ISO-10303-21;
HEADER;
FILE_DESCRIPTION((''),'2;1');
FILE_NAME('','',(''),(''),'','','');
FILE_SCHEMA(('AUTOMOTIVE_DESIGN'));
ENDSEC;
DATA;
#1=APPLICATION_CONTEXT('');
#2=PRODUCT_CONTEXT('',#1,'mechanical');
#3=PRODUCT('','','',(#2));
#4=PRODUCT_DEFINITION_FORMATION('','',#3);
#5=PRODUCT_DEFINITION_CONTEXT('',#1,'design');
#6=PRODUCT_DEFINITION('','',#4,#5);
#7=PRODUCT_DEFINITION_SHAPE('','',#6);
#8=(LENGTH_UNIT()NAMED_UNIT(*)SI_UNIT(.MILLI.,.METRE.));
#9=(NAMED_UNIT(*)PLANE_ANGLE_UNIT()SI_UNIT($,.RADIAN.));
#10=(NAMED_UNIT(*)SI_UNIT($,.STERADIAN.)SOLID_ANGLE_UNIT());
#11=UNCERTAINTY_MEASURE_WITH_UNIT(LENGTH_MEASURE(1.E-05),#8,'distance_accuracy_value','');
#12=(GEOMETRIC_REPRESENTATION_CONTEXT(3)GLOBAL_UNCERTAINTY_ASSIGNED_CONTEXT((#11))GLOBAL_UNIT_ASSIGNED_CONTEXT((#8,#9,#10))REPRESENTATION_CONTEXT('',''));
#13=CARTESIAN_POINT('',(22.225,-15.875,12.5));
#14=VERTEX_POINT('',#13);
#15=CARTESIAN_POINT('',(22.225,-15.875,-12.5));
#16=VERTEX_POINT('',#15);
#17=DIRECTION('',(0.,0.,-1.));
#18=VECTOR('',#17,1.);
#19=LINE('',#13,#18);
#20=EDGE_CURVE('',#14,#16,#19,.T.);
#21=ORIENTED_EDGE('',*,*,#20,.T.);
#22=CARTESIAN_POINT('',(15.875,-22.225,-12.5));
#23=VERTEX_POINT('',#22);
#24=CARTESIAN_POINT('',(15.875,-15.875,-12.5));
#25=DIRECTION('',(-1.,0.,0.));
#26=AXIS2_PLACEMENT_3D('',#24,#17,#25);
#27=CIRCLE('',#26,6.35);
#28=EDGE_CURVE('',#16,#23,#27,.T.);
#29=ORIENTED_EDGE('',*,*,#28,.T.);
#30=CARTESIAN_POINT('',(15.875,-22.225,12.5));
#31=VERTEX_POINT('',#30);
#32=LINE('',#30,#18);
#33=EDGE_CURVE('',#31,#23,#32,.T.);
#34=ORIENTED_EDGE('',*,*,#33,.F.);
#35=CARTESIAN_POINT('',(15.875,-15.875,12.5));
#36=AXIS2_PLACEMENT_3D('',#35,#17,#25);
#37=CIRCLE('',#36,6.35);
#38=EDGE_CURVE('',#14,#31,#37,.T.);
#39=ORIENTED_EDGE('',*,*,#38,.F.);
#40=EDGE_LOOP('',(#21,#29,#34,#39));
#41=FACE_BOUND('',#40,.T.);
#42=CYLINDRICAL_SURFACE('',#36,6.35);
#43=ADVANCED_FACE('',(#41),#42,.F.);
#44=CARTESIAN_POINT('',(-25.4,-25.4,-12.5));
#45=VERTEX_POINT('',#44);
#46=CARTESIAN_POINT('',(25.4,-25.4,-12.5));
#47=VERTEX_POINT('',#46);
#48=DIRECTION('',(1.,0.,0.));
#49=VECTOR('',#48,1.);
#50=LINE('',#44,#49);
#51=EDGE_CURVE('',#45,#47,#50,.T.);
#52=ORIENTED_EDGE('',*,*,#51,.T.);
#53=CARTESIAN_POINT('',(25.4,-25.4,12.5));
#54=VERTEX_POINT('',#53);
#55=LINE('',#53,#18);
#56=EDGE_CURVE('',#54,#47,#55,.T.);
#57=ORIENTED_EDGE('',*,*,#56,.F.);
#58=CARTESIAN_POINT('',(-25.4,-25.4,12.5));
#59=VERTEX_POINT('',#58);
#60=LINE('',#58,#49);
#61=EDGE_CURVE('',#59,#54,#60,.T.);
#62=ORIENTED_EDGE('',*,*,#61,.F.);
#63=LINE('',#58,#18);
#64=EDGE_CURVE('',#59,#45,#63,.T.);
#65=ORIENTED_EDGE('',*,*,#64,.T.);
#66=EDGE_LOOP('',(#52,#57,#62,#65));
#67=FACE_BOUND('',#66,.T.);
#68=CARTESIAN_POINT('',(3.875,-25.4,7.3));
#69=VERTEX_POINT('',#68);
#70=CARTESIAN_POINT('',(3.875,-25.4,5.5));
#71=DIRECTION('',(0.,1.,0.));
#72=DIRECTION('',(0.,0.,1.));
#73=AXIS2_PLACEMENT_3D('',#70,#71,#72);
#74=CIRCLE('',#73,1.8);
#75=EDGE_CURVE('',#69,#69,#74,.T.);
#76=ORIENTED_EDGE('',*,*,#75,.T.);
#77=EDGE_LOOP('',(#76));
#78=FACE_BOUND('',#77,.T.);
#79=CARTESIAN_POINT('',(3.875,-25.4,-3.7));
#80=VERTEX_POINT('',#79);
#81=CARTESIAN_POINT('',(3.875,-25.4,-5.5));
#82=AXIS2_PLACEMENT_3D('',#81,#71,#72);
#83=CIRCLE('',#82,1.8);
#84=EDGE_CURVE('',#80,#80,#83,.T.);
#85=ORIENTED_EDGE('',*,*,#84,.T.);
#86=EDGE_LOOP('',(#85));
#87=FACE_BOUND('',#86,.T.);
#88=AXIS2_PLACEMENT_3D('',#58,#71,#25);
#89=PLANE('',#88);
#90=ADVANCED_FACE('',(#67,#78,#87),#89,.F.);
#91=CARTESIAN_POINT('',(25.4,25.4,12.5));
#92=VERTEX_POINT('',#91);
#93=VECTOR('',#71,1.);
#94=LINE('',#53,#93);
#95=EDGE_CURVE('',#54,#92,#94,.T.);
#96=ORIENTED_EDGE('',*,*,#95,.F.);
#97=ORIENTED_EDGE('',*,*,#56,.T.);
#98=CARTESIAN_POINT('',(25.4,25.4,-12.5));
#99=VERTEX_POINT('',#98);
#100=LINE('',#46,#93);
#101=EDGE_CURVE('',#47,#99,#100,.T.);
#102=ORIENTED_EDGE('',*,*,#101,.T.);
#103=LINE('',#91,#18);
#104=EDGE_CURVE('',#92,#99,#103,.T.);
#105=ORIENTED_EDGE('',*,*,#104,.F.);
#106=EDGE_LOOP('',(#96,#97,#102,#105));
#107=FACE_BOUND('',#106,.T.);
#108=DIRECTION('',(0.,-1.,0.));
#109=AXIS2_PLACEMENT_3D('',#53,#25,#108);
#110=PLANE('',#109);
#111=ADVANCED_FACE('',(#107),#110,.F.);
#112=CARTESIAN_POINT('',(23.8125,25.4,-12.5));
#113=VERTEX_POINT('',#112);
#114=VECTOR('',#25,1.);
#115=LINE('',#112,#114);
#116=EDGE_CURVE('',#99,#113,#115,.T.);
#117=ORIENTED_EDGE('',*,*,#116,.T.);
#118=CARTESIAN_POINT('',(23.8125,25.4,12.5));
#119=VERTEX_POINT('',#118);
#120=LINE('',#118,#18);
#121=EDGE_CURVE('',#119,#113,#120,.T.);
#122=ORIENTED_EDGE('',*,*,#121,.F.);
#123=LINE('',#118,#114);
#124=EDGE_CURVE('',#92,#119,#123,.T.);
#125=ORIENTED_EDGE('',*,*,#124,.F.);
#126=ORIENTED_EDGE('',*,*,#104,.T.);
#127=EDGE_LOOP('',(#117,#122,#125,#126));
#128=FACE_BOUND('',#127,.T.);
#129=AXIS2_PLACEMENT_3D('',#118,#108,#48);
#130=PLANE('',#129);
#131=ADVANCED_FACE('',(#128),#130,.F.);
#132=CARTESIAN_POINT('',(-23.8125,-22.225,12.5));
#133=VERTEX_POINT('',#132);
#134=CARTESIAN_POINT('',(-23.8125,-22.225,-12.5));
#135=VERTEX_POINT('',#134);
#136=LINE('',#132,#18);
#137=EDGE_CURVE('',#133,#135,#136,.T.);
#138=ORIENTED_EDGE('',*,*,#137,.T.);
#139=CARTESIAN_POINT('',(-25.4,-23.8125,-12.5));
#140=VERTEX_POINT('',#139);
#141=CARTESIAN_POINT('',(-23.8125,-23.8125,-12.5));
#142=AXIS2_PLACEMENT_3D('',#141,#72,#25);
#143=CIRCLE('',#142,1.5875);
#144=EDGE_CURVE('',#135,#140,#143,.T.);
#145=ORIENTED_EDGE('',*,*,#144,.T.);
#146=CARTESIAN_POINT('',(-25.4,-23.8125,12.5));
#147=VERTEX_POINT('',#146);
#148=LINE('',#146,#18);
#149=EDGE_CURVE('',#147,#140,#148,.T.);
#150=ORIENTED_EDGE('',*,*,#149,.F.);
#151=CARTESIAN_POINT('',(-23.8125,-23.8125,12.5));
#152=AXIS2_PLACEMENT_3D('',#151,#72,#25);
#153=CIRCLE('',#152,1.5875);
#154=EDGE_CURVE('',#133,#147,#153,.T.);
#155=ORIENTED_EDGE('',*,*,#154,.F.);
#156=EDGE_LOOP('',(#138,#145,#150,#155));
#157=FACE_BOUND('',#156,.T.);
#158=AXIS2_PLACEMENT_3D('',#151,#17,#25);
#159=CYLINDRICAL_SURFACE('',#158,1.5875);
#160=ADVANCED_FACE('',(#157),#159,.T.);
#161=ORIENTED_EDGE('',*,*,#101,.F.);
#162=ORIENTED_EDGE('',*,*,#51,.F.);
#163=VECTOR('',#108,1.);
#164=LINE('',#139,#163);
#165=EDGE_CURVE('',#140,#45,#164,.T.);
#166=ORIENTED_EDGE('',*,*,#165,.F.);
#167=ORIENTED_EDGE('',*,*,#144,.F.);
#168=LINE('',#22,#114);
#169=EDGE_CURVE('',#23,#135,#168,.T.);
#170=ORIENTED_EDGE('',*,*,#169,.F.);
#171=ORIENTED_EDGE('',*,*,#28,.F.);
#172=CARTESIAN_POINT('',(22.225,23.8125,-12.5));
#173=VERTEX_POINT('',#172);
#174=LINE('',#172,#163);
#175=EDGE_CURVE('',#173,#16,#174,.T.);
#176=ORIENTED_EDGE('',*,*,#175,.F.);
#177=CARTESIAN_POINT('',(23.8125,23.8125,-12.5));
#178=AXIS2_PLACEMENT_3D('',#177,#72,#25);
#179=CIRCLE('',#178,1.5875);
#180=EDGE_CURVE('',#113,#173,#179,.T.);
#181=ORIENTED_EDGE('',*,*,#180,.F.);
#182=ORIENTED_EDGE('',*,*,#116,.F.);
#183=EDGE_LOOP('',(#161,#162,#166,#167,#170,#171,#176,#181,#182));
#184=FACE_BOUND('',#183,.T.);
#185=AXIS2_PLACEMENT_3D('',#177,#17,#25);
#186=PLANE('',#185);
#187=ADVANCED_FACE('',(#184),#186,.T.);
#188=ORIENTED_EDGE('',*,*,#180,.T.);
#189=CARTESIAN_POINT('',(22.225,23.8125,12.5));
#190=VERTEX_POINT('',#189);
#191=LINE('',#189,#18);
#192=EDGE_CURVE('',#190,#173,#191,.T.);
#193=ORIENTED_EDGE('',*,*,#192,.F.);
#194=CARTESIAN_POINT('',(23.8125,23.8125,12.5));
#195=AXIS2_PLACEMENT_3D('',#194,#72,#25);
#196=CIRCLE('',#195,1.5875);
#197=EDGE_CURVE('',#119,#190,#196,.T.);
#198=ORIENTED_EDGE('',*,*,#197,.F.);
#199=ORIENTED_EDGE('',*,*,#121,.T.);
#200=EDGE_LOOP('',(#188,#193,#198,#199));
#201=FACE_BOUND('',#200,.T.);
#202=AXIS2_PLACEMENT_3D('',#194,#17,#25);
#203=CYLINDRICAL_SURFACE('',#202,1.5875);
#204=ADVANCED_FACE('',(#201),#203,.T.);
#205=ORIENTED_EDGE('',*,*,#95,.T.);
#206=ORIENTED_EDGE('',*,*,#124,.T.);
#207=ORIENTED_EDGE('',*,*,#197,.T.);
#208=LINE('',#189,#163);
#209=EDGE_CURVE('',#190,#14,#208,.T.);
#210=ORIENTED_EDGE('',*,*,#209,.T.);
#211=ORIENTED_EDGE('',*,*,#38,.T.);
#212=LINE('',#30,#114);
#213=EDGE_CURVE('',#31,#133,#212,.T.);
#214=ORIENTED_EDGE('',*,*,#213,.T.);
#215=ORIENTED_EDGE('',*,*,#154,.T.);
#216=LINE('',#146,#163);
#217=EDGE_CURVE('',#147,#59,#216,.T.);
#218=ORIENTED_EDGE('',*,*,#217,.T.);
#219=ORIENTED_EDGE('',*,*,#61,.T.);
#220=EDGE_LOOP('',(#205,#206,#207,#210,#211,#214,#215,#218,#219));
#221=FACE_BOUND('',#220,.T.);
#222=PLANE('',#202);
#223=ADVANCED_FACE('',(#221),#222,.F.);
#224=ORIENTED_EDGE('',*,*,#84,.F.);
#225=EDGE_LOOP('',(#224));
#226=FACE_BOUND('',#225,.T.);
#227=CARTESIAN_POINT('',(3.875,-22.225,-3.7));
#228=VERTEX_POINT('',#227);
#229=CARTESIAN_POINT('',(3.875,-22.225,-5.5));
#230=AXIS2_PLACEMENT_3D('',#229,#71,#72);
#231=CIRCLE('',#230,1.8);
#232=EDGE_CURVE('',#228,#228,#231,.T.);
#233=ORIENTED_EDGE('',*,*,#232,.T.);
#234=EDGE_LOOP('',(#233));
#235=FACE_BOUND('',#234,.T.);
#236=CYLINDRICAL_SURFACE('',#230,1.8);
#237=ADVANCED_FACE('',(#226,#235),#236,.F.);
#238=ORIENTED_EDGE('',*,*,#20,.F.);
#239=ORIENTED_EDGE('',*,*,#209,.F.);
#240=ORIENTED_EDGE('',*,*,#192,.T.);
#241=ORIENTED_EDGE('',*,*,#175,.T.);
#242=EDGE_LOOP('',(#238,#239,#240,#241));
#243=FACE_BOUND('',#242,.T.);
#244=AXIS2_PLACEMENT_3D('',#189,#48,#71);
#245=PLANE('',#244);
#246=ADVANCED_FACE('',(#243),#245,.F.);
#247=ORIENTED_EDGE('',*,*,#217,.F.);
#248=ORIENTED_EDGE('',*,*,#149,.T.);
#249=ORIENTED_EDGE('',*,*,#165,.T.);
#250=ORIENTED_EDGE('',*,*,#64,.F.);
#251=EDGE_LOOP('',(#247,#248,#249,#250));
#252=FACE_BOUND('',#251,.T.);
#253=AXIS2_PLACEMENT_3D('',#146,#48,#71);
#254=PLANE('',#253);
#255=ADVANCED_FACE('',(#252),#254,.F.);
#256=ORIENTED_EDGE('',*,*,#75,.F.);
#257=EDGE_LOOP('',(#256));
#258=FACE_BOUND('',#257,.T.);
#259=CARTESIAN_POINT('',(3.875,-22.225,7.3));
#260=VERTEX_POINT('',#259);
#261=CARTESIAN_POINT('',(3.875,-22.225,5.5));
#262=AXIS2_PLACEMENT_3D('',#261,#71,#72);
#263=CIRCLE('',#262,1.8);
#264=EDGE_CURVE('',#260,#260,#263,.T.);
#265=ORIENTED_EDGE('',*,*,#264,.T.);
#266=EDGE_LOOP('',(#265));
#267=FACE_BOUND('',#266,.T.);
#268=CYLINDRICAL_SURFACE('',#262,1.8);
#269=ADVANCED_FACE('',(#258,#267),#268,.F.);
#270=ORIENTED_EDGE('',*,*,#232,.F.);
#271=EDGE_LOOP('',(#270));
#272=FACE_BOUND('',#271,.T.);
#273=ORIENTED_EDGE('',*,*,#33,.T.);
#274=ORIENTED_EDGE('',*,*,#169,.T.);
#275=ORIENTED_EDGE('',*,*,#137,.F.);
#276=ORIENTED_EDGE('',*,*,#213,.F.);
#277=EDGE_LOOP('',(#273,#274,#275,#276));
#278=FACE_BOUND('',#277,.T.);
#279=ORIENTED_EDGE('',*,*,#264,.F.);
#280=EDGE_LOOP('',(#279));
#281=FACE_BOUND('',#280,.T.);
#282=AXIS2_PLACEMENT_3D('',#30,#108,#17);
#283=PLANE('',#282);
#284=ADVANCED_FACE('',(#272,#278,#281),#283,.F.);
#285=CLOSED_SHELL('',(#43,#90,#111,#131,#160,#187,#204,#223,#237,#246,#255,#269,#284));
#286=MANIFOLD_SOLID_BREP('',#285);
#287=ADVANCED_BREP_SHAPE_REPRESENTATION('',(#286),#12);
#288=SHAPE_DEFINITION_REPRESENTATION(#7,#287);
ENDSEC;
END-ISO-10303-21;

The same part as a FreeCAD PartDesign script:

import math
import FreeCAD as App
import Part
import Sketcher

V = App.Vector
Q = App.Units.Quantity

doc = App.newDocument("Part")
body = doc.addObject("PartDesign::Body", "Body")

# Sketch on XY plane
sketch1 = body.newObject("Sketcher::SketchObject", "Sketch")
sketch1.AttachmentSupport = (doc.getObject("XY_Plane"), [""])
sketch1.MapMode = "FlatFace"
sketch1.addGeometry(Part.LineSegment(V(-25.4, -25.4, 0), V(25.4, -25.4, 0)), False)
sketch1.addGeometry(Part.LineSegment(V(25.4, -25.4, 0), V(25.4, 25.4, 0)), False)
sketch1.addGeometry(Part.LineSegment(V(25.4, 25.4, 0), V(23.8125, 25.4, 0)), False)
sketch1.addGeometry(Part.ArcOfCircle(Part.Circle(V(23.8125, 23.8125, 0), V(0, 0, 1), 1.5875), math.radians(90), math.radians(180)), False)
sketch1.addGeometry(Part.LineSegment(V(22.225, 23.8125, 0), V(22.225, -15.875, 0)), False)
sketch1.addGeometry(Part.ArcOfCircle(Part.Circle(V(15.875, -15.875, 0), V(0, 0, 1), 6.35), math.radians(-90), math.radians(0)), False)
sketch1.addGeometry(Part.LineSegment(V(15.875, -22.225, 0), V(-23.8125, -22.225, 0)), False)
sketch1.addGeometry(Part.ArcOfCircle(Part.Circle(V(-23.8125, -23.8125, 0), V(0, 0, 1), 1.5875), math.radians(90), math.radians(180)), False)
sketch1.addGeometry(Part.LineSegment(V(-25.4, -23.8125, 0), V(-25.4, -25.4, 0)), False)
sketch1.addConstraint(Sketcher.Constraint("Coincident", 0, 2, 1, 1))
sketch1.addConstraint(Sketcher.Constraint("Coincident", 1, 2, 2, 1))
sketch1.addConstraint(Sketcher.Constraint("Tangent", 2, 2, 3, 1))
sketch1.addConstraint(Sketcher.Constraint("Tangent", 3, 2, 4, 1))
sketch1.addConstraint(Sketcher.Constraint("Tangent", 4, 2, 5, 2))
sketch1.addConstraint(Sketcher.Constraint("Tangent", 5, 1, 6, 1))
sketch1.addConstraint(Sketcher.Constraint("Tangent", 6, 2, 7, 1))
sketch1.addConstraint(Sketcher.Constraint("Tangent", 7, 2, 8, 1))
sketch1.addConstraint(Sketcher.Constraint("Coincident", 8, 2, 0, 1))
sketch1.addConstraint(Sketcher.Constraint("Horizontal", 0))
sketch1.addConstraint(Sketcher.Constraint("Vertical", 1))
sketch1.addConstraint(Sketcher.Constraint("Horizontal", 2))
sketch1.addConstraint(Sketcher.Constraint("Vertical", 4))
sketch1.addConstraint(Sketcher.Constraint("Horizontal", 6))
sketch1.addConstraint(Sketcher.Constraint("Vertical", 8))
sketch1.addConstraint(Sketcher.Constraint("Equal", 3, 7))
sketch1.addConstraint(Sketcher.Constraint("Symmetric", 3, 3, 7, 3, -1, 1))
sketch1.addConstraint(Sketcher.Constraint("Symmetric", 1, 2, 8, 2, -1, 1))
sketch1.addConstraint(Sketcher.Constraint("Equal", 0, 1))
sketch1.addConstraint(Sketcher.Constraint("DistanceX", 0, 1, 0, 2, Q("2 in")))
sketch1.addConstraint(Sketcher.Constraint("Radius", 5, Q("0.25 in")))
sketch1.addConstraint(Sketcher.Constraint("Radius", 3, Q("0.0625 in")))
pad1 = body.newObject("PartDesign::Pad", "Pad")
pad1.Profile = sketch1
pad1.Length = 25
pad1.Midplane = True

# Sketch on XZ plane
sketch2 = body.newObject("Sketcher::SketchObject", "Sketch001")
sketch2.AttachmentSupport = (doc.getObject("XZ_Plane"), [""])
sketch2.MapMode = "FlatFace"
sketch2.AttachmentOffset = App.Placement(V(0, 0, 0.875 * 25.4), App.Rotation())
sketch2.addGeometry(Part.Circle(V(3.875, -5.5, 0), V(0, 0, 1), 1.8), False)
sketch2.addGeometry(Part.Circle(V(3.875, 5.5, 0), V(0, 0, 1), 1.8), False)
sketch2.addConstraint(Sketcher.Constraint("Equal", 0, 1))
sketch2.addConstraint(Sketcher.Constraint("Symmetric", 0, 3, 1, 3, -1))
sketch2.addConstraint(Sketcher.Constraint("Diameter", 0, Q("3.6 mm")))
sketch2.addConstraint(Sketcher.Constraint("DistanceX", -1, 1, 0, 3, Q("3.875 mm")))
sketch2.addConstraint(Sketcher.Constraint("DistanceY", 0, 3, -1, 1, Q("5.5 mm")))
doc.recompute()
hole = body.newObject("PartDesign::Hole", "Hole")
hole.Profile = sketch2
hole.ThreadType = "None"
hole.Diameter = 3.6
hole.DepthType = "ThroughAll"
hole.Reversed = True

doc.recompute()
